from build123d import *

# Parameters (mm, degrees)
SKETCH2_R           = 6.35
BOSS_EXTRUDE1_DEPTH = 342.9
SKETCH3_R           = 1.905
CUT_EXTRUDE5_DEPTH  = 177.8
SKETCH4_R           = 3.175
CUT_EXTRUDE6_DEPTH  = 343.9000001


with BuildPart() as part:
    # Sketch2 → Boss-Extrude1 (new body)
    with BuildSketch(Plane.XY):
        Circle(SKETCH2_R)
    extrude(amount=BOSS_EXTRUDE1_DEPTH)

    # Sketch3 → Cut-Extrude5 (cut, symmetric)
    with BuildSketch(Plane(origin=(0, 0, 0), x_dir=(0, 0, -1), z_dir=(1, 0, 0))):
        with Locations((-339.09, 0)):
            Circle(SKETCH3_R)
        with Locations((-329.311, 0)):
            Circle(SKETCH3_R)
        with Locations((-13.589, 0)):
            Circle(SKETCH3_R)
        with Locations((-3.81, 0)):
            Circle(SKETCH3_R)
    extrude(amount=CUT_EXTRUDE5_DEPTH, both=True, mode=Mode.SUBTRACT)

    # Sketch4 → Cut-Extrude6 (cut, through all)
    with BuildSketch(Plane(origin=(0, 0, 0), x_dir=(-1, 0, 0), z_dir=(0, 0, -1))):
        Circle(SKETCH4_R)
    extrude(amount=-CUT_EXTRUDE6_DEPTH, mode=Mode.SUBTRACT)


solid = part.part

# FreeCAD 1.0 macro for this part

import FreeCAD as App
import Part
import Sketcher
from FreeCAD import Vector
Q = App.Units.Quantity

doc = App.newDocument("Part")
body = doc.addObject("PartDesign::Body", "Body")

sketch1 = doc.addObject("Sketcher::SketchObject", "Sketch")
body.addObject(sketch1)
sketch1.AttachmentSupport = (doc.XY_Plane, [""])
sketch1.MapMode = "FlatFace"
sketch1.addGeometry(Part.Circle(Vector(0, 0, 0), Vector(0, 0, 1), 6), False)
sketch1.addConstraint([
    Sketcher.Constraint("Coincident", 0, 3, -1, 1),
    Sketcher.Constraint("Diameter", 0, Q("0.5 in")),
])
pad1 = doc.addObject("PartDesign::Pad", "Pad")
body.addObject(pad1)
pad1.Profile = sketch1
pad1.Length = Q("13.5 in")

sketch2 = doc.addObject("Sketcher::SketchObject", "Sketch001")
body.addObject(sketch2)
sketch2.AttachmentSupport = (doc.YZ_Plane, [""])
sketch2.MapMode = "FlatFace"
sketch2.addGeometry([
    Part.Circle(Vector(0, 339.1, 0), Vector(0, 0, 1), 1.9),
    Part.Circle(Vector(0, 329.3, 0), Vector(0, 0, 1), 1.9),
    Part.Circle(Vector(0, 13.6, 0), Vector(0, 0, 1), 1.9),
    Part.Circle(Vector(0, 3.8, 0), Vector(0, 0, 1), 1.9),
], False)
sketch2.addConstraint([
    Sketcher.Constraint("Equal", 0, 1),
    Sketcher.Constraint("Equal", 1, 2),
    Sketcher.Constraint("Equal", 2, 3),
    Sketcher.Constraint("PointOnObject", 0, 3, -2),
    Sketcher.Constraint("PointOnObject", 1, 3, -2),
    Sketcher.Constraint("PointOnObject", 2, 3, -2),
    Sketcher.Constraint("PointOnObject", 3, 3, -2),
    Sketcher.Constraint("Diameter", 0, Q("0.15 in")),
    Sketcher.Constraint("DistanceY", 3, 3, 0, 3, Q("13.2 in")),
    Sketcher.Constraint("DistanceY", -1, 1, 0, 3, Q("13.35 in")),
    Sketcher.Constraint("DistanceY", 2, 3, 1, 3, Q("12.43 in")),
    Sketcher.Constraint("DistanceY", -1, 1, 1, 3, Q("12.965 in")),
])
pocket1 = doc.addObject("PartDesign::Pocket", "Pocket")
body.addObject(pocket1)
pocket1.Profile = sketch2
pocket1.Length = Q("14 in")
pocket1.Midplane = True

sketch3 = doc.addObject("Sketcher::SketchObject", "Sketch002")
body.addObject(sketch3)
sketch3.AttachmentSupport = (doc.XY_Plane, [""])
sketch3.MapMode = "FlatFace"
sketch3.addGeometry(Part.Circle(Vector(0, 0, 0), Vector(0, 0, 1), 3.2), False)
sketch3.addConstraint([
    Sketcher.Constraint("Coincident", 0, 3, -1, 1),
    Sketcher.Constraint("Diameter", 0, Q("0.25 in")),
])
pocket2 = doc.addObject("PartDesign::Pocket", "Pocket001")
body.addObject(pocket2)
pocket2.Profile = sketch3
pocket2.Type = "ThroughAll"
pocket2.Reversed = True

doc.recompute()
